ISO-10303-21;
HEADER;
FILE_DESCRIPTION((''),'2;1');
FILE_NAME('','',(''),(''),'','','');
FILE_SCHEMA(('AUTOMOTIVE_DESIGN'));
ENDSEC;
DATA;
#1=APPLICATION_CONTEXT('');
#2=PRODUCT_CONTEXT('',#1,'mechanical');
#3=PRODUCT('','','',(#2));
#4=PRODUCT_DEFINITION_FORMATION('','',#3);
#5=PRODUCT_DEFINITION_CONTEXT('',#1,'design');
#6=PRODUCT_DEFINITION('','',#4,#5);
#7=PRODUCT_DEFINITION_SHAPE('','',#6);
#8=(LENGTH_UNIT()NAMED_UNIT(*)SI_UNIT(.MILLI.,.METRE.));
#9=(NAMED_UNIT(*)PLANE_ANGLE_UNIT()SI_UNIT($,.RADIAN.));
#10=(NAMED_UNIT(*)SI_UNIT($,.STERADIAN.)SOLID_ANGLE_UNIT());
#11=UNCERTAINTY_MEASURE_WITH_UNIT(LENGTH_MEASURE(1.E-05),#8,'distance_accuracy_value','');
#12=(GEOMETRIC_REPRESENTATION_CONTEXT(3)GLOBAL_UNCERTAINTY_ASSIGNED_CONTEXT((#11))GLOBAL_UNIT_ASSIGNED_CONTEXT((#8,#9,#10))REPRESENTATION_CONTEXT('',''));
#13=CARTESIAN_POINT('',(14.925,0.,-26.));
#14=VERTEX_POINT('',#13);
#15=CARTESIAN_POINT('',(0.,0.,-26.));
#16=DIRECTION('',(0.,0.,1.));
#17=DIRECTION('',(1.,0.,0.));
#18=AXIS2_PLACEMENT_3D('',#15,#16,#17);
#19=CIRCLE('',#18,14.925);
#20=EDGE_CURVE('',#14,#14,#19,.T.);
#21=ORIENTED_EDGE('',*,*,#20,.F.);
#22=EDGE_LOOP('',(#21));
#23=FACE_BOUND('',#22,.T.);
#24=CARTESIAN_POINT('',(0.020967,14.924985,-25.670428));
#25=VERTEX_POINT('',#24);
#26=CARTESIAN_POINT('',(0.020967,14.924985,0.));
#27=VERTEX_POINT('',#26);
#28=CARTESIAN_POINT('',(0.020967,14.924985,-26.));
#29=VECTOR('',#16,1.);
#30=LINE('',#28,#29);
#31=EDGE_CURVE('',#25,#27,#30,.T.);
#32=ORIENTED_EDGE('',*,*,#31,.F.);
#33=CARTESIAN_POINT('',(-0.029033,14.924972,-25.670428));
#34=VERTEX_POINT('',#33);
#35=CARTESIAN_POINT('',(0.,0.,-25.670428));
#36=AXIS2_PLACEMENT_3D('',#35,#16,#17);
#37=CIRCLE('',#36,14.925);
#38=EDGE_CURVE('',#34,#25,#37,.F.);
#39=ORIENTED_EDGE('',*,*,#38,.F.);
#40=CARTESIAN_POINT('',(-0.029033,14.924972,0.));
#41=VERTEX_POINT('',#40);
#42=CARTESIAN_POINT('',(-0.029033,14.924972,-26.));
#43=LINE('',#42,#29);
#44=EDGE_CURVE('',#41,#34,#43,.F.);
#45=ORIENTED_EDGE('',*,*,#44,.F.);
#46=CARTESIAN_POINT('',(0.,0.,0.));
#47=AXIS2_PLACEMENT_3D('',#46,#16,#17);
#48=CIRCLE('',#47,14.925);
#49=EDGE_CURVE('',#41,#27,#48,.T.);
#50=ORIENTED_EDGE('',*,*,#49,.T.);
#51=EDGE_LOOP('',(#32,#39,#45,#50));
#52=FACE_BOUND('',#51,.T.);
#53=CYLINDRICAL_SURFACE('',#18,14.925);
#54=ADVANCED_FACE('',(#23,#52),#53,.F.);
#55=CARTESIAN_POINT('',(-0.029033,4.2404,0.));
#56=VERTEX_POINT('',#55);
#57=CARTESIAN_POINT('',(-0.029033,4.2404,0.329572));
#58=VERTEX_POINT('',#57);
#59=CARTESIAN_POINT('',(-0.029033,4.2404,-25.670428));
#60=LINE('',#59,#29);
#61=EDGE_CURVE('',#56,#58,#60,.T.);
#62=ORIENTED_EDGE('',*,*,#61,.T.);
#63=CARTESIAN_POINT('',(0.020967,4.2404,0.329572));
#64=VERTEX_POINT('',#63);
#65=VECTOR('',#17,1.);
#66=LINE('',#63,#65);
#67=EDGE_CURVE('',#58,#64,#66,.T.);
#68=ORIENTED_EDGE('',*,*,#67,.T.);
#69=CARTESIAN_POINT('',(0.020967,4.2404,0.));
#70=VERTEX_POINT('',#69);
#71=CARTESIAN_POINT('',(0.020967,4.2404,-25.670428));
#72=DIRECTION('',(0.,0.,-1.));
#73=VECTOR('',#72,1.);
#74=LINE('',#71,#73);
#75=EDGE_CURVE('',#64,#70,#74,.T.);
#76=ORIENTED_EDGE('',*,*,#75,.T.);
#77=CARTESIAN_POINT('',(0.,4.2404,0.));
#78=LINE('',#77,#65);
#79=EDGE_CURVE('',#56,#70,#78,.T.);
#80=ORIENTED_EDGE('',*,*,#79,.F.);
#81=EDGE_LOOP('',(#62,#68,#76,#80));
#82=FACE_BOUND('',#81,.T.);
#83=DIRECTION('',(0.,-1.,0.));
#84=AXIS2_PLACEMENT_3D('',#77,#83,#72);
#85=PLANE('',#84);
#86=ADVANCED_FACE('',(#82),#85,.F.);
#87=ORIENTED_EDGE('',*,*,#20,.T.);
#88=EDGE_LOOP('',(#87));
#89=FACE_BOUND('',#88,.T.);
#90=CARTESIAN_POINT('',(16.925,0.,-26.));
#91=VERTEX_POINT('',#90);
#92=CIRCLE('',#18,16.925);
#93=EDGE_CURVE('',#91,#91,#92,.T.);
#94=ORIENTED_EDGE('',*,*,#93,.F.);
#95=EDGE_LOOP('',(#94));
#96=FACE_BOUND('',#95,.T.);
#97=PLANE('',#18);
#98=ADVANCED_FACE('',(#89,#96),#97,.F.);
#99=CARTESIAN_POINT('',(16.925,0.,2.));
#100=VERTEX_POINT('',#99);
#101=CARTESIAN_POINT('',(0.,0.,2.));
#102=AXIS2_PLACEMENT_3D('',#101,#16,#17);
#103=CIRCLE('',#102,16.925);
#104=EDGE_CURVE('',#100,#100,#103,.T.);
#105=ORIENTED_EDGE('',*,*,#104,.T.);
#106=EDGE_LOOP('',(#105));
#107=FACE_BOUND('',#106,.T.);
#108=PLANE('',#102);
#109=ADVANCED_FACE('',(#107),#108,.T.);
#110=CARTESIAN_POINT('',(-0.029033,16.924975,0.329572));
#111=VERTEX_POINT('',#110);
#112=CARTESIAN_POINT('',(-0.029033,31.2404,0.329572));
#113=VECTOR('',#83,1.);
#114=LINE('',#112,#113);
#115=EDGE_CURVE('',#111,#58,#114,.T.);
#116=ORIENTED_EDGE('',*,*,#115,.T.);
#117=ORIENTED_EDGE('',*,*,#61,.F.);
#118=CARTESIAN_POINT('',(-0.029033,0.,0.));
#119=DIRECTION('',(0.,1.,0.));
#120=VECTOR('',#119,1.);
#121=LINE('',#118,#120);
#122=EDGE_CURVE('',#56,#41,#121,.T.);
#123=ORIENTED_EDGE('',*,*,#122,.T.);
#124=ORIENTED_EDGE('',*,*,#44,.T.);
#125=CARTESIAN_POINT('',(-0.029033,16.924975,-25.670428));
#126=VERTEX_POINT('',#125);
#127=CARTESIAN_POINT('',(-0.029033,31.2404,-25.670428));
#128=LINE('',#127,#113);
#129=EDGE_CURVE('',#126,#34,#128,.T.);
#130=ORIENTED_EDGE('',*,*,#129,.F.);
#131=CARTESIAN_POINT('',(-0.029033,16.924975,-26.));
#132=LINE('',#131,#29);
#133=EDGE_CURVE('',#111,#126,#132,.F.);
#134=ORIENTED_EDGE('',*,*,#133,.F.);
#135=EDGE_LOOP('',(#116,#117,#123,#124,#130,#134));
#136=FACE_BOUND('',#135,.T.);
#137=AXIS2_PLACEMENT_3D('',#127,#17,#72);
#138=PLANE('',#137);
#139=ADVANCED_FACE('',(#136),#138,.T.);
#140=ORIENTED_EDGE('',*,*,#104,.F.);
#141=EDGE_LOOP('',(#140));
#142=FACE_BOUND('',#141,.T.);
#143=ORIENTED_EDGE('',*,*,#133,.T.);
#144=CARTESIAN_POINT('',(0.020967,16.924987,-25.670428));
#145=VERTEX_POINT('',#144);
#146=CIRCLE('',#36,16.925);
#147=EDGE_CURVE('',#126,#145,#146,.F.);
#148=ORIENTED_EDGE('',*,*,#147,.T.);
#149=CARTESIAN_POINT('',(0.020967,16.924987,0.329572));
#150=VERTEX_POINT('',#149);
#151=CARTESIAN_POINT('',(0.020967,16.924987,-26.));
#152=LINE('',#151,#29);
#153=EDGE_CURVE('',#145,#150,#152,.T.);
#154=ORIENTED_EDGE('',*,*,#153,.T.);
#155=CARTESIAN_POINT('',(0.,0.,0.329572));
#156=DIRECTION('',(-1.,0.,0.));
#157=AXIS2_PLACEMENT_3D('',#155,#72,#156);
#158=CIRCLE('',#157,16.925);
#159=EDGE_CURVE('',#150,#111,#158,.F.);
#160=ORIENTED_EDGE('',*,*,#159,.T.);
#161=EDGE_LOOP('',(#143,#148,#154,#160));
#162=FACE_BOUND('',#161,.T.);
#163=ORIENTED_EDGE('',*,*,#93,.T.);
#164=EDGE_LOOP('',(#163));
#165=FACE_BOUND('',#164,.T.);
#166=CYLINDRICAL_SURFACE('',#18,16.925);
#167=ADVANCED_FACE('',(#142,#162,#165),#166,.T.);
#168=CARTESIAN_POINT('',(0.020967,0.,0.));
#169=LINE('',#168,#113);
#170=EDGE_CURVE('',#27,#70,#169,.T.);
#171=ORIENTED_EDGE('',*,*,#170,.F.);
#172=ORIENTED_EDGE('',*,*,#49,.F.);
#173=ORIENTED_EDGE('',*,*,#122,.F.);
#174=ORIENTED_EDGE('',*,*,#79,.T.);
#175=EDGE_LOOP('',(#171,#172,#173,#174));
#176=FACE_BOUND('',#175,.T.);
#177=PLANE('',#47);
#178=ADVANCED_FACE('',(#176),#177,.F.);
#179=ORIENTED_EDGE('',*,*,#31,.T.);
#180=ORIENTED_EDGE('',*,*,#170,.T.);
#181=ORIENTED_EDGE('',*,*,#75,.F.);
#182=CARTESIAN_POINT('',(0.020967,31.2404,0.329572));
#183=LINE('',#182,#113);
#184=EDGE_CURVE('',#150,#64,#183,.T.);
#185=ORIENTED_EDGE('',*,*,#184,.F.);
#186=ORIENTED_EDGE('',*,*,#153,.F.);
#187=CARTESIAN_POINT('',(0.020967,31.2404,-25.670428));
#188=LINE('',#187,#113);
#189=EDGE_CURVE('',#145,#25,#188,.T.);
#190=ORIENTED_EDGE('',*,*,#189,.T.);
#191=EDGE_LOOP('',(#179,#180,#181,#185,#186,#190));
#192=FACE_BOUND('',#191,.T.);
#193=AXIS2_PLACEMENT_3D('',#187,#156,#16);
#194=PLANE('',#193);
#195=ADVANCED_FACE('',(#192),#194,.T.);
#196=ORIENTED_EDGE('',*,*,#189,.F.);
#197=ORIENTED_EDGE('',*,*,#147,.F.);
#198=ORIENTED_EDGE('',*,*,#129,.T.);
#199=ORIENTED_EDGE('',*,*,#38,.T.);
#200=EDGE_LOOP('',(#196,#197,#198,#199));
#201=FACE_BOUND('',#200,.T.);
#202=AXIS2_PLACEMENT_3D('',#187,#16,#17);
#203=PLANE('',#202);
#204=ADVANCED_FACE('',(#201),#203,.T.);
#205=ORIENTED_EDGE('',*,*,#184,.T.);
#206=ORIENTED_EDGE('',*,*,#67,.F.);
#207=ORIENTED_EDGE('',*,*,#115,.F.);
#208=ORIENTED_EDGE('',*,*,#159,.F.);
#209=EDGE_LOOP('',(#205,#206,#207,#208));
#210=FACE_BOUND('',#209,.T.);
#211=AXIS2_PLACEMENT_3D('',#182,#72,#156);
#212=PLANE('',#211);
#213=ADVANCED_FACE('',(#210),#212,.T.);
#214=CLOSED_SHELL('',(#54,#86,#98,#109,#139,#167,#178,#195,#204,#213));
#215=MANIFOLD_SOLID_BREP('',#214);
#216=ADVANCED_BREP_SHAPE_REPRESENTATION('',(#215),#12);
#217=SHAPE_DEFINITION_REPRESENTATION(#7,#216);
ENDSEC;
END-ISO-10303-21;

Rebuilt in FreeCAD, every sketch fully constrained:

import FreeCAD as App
import Part
import Sketcher

V = App.Vector
Q = App.Units.Quantity

doc = App.newDocument("Part")
body = doc.addObject("PartDesign::Body", "Body")

sketch1 = doc.addObject("Sketcher::SketchObject", "Sketch")
body.addObject(sketch1)
sketch1.AttachmentSupport = (doc.XY_Plane, [""])
sketch1.MapMode = "FlatFace"
sketch1.addGeometry(Part.Circle(V(0, 0, 0), V(0, 0, 1), 15), False)
sketch1.addConstraint([
    Sketcher.Constraint("Coincident", 0, 3, -1, 1),
    Sketcher.Constraint("Diameter", 0, Q("29.85 mm")),
])
pad1 = doc.addObject("PartDesign::Pad", "Pad")
body.addObject(pad1)
pad1.Profile = sketch1
pad1.Length = 2

sketch2 = doc.addObject("Sketcher::SketchObject", "Sketch001")
body.addObject(sketch2)
sketch2.AttachmentSupport = (doc.XY_Plane, [""])
sketch2.MapMode = "FlatFace"
sketch2.AttachmentOffset = App.Placement(V(0, 0, -26), App.Rotation())
sketch2.addGeometry([
    Part.Circle(V(0, 0, 0), V(0, 0, 1), 17),
    Part.Circle(V(0, 0, 0), V(0, 0, 1), 15),
], False)
sketch2.addConstraint([
    Sketcher.Constraint("Coincident", 0, 3, -1, 1),
    Sketcher.Constraint("Coincident", 1, 3, -1, 1),
    Sketcher.Constraint("Diameter", 0, Q("33.85 mm")),
    Sketcher.Constraint("Diameter", 1, Q("29.85 mm")),
])
pad2 = doc.addObject("PartDesign::Pad", "Pad001")
body.addObject(pad2)
pad2.Profile = sketch2
pad2.Length = 28

sketch3 = doc.addObject("Sketcher::SketchObject", "Sketch002")
body.addObject(sketch3)
sketch3.AttachmentSupport = (doc.XZ_Plane, [""])
sketch3.MapMode = "FlatFace"
sketch3.AttachmentOffset = App.Placement(V(0, 0, -4.2404), App.Rotation())
sketch3.addGeometry([
    Part.LineSegment(V(-0.03, -25.67, 0), V(-0.03, 0.33, 0)),
    Part.LineSegment(V(-0.03, 0.33, 0), V(0.02, 0.33, 0)),
    Part.LineSegment(V(0.02, 0.33, 0), V(0.02, -25.67, 0)),
    Part.LineSegment(V(0.02, -25.67, 0), V(-0.03, -25.67, 0)),
], False)
sketch3.addConstraint([
    Sketcher.Constraint("Coincident", 0, 2, 1, 1),
    Sketcher.Constraint("Coincident", 1, 2, 2, 1),
    Sketcher.Constraint("Coincident", 2, 2, 3, 1),
    Sketcher.Constraint("Coincident", 3, 2, 0, 1),
    Sketcher.Constraint("Vertical", 0),
    Sketcher.Constraint("Horizontal", 1),
    Sketcher.Constraint("Vertical", 2),
    Sketcher.Constraint("Horizontal", 3),
    Sketcher.Constraint("DistanceY", 0, 1, 0, 2, Q("26 mm")),
    Sketcher.Constraint("DistanceX", 1, 1, 1, 2, Q("0.05 mm")),
    Sketcher.Constraint("DistanceY", -1, 1, 0, 2, Q("0.329572 mm")),
    Sketcher.Constraint("DistanceX", 0, 2, -1, 1, Q("0.029033 mm")),
])
pocket1 = doc.addObject("PartDesign::Pocket", "Pocket")
body.addObject(pocket1)
pocket1.Profile = sketch3
pocket1.Length = 27

doc.recompute()
